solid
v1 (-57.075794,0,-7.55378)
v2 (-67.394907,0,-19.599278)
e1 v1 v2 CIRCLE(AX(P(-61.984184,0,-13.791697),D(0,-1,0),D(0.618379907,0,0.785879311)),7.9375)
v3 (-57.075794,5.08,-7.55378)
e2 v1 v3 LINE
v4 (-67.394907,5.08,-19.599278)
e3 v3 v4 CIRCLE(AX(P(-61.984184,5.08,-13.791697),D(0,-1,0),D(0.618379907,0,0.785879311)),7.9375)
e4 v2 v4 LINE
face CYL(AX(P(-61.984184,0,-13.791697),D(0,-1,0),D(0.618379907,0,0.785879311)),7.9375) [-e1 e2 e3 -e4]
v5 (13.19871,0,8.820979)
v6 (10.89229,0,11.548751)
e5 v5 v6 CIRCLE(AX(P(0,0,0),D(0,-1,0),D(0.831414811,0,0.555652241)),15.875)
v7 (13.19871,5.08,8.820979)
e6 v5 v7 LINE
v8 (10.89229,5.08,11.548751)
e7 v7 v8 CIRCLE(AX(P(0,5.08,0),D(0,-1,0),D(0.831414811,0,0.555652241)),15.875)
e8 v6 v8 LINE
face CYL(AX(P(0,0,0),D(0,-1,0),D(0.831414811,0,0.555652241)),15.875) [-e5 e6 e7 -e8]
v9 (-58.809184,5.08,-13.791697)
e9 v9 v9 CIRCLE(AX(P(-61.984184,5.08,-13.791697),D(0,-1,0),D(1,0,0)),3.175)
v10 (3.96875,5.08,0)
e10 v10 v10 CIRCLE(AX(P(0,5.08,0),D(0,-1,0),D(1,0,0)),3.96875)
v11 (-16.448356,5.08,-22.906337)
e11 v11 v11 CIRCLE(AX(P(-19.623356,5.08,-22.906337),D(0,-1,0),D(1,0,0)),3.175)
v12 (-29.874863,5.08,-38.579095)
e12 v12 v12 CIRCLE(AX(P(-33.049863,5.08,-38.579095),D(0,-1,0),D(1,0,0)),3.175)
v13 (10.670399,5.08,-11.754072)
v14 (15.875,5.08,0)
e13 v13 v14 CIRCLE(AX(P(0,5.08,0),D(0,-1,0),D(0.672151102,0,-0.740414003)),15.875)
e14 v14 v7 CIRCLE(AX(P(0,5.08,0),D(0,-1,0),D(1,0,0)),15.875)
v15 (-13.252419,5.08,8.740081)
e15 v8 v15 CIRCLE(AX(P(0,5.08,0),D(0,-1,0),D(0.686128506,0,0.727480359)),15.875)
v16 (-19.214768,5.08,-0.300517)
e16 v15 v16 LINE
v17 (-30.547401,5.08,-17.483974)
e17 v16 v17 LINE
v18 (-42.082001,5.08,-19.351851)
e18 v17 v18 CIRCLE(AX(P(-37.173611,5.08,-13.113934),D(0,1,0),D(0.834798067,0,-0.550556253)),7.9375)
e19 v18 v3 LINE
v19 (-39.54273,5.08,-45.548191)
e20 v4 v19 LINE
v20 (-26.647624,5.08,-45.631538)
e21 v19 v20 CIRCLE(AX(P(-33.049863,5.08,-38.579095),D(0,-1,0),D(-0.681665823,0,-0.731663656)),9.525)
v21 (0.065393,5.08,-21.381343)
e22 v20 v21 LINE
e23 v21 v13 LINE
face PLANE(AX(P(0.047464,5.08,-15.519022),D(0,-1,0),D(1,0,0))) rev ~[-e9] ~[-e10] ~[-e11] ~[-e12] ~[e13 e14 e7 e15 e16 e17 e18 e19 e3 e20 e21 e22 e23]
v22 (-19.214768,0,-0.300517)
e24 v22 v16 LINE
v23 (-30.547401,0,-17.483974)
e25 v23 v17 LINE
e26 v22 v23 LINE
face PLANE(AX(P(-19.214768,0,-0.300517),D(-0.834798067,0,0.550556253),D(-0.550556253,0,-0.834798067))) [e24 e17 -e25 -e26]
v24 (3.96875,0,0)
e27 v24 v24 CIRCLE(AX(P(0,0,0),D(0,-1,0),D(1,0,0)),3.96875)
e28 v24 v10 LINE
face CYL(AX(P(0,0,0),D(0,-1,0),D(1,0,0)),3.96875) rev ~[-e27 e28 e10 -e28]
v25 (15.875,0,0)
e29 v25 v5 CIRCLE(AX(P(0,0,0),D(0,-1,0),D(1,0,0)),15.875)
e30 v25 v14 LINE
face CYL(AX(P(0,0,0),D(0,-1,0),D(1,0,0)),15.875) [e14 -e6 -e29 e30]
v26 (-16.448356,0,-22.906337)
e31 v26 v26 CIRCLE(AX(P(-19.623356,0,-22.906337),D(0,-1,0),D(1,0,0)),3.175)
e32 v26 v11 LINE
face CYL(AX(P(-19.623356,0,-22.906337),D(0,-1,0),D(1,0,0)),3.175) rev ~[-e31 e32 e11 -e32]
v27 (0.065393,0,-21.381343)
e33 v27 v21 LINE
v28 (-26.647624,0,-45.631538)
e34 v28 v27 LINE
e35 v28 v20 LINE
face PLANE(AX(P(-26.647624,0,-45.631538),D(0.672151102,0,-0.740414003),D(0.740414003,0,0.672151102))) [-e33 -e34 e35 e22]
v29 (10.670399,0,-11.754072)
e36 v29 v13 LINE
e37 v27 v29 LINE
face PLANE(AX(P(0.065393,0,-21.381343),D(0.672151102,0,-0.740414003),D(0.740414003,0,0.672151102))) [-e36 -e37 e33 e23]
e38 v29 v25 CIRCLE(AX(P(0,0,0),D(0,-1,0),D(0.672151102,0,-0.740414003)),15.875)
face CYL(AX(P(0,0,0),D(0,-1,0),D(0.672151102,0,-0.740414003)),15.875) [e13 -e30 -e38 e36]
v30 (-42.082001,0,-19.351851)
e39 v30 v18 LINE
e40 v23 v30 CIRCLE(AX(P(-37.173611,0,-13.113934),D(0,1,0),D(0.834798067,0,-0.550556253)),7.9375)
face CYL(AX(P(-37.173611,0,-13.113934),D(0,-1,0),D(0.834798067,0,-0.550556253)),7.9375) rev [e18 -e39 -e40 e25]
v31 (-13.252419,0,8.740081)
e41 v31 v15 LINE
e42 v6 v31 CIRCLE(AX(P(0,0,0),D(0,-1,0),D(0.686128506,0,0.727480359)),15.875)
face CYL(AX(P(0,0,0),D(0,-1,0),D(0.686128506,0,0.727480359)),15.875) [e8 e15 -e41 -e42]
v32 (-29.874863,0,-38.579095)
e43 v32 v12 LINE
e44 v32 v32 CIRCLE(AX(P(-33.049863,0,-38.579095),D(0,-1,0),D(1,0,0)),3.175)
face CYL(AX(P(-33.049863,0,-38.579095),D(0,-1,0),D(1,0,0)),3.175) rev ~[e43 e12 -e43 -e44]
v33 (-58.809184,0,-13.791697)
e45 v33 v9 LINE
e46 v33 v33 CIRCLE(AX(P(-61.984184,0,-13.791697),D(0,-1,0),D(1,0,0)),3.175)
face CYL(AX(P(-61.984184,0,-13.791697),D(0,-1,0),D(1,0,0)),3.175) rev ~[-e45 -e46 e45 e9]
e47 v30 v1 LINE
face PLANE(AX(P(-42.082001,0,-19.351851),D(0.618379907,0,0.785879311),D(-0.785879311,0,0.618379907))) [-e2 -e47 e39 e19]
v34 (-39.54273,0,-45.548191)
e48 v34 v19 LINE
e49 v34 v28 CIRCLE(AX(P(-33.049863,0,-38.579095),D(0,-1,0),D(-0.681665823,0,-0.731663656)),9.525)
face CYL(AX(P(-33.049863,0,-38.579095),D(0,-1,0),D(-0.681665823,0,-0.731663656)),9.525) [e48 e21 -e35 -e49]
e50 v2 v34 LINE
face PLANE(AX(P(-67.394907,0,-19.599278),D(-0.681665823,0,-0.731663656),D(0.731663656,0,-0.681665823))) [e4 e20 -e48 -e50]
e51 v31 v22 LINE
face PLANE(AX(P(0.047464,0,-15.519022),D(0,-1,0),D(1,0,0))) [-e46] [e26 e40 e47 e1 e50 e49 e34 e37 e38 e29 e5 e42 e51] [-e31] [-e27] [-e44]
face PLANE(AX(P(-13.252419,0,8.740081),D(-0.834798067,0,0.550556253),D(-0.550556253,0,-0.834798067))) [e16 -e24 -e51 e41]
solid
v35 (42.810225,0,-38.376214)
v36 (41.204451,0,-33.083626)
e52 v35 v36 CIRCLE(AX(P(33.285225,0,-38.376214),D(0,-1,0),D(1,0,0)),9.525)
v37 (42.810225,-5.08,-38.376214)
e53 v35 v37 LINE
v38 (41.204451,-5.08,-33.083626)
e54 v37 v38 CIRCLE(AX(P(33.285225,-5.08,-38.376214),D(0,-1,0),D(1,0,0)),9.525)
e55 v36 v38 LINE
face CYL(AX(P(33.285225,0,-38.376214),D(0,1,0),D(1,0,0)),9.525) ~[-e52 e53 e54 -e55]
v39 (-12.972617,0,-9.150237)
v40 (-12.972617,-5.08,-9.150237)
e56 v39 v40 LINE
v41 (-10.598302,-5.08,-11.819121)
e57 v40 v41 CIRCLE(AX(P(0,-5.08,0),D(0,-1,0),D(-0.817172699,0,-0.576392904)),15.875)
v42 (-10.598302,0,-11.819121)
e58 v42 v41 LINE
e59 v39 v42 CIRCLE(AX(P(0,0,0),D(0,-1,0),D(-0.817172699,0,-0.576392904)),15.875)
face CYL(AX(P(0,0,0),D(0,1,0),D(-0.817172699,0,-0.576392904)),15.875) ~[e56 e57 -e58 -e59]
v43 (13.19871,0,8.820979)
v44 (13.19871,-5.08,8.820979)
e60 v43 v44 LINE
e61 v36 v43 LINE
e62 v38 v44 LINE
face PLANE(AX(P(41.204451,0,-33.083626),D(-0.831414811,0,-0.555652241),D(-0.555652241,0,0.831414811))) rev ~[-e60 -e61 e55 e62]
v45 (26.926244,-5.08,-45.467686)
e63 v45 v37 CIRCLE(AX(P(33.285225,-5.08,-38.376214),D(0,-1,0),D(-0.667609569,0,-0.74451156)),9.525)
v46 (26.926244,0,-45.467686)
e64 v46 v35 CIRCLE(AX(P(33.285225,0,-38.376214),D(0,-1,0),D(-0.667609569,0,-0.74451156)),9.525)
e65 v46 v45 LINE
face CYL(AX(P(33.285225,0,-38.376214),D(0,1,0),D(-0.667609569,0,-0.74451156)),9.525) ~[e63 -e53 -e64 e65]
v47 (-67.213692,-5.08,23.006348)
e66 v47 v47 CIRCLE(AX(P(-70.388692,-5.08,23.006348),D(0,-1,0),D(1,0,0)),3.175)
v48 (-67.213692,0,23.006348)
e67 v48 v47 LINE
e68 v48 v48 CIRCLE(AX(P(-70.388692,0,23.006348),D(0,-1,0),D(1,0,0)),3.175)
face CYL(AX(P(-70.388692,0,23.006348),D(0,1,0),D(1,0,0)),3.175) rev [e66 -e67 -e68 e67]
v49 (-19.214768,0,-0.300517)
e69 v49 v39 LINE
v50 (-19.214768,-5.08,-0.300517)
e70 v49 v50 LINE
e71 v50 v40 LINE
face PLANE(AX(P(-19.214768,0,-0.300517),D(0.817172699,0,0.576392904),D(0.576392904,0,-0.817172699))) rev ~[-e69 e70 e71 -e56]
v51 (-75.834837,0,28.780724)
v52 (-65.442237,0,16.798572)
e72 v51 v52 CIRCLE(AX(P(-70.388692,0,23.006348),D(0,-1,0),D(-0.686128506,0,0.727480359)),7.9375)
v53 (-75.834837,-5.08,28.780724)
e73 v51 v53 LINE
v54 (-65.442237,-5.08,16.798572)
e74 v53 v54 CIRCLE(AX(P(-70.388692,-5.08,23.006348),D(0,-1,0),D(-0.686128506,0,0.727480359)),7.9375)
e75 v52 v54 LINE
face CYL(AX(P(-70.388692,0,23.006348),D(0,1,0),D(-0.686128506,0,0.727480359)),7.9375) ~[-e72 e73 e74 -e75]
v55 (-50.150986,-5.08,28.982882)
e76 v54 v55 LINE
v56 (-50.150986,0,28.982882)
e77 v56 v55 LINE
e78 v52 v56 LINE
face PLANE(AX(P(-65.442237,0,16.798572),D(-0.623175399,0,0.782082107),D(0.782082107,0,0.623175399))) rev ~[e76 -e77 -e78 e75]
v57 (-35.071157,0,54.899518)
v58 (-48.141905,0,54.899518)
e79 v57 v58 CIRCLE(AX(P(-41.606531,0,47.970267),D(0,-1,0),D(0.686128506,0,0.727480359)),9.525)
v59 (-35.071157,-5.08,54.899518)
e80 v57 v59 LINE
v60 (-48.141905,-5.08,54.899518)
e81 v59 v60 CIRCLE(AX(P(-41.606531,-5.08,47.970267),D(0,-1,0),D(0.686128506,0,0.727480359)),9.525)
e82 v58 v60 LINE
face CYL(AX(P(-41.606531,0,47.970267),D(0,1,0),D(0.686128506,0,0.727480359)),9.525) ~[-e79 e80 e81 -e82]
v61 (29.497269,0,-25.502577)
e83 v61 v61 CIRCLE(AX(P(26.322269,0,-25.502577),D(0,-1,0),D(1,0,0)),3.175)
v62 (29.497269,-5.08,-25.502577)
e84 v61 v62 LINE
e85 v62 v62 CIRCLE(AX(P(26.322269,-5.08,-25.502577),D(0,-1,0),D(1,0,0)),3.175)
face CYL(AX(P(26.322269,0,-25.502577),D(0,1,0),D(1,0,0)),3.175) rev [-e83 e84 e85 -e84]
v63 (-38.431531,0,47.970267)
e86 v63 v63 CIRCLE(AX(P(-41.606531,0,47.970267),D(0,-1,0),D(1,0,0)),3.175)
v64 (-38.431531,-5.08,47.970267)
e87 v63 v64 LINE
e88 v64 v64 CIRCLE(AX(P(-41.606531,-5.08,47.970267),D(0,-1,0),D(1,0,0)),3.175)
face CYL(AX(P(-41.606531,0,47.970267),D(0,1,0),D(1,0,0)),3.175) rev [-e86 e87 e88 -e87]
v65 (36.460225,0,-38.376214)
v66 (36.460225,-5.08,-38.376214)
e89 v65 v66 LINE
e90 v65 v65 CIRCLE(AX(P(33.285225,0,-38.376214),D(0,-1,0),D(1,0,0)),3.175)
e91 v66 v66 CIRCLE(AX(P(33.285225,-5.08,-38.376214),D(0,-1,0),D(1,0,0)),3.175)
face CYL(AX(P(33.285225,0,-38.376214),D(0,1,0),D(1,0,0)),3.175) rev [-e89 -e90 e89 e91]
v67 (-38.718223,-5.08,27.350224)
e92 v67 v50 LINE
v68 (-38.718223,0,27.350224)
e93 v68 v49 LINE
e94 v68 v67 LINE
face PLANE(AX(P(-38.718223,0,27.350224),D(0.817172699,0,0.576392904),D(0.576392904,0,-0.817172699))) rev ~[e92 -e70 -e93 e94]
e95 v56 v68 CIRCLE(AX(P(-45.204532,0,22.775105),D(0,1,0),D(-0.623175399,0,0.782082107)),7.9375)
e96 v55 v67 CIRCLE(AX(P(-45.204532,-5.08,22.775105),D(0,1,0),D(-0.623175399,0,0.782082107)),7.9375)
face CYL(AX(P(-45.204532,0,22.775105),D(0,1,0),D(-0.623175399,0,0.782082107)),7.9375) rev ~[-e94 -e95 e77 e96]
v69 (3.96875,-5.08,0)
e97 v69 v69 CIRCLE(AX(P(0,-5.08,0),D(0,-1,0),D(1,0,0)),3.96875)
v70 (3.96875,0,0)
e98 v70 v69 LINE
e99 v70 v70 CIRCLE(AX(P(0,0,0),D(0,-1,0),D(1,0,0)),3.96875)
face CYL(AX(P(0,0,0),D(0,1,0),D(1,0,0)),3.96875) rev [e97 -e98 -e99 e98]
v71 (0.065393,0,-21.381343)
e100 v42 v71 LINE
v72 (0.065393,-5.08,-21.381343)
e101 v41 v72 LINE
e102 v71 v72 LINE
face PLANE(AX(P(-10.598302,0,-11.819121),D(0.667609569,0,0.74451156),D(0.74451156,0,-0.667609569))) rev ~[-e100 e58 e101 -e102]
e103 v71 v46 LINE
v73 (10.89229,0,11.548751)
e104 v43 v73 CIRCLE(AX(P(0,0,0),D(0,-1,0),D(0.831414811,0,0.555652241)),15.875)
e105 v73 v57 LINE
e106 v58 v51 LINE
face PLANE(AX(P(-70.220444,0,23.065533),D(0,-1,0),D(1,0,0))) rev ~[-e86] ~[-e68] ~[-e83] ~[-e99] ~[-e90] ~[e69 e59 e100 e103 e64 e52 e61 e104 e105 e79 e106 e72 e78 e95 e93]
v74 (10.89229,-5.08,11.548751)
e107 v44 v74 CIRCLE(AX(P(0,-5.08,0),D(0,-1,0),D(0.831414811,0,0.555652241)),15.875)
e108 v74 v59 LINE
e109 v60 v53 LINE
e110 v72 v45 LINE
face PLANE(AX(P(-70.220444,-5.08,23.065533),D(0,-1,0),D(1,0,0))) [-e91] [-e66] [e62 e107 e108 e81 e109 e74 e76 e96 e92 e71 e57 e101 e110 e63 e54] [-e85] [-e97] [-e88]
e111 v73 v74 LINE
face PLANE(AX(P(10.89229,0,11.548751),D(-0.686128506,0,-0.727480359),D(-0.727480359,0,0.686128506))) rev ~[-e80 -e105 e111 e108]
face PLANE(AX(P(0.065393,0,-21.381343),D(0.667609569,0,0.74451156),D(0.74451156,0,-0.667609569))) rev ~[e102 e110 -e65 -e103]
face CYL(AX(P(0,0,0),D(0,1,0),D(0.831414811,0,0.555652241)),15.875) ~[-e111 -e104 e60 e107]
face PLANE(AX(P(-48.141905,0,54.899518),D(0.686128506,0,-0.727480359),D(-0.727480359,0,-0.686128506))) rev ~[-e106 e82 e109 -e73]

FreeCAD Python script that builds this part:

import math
import FreeCAD as App
import Part
import Sketcher
from FreeCAD import Vector
Q = App.Units.Quantity

doc = App.newDocument("Part")
body = doc.addObject("PartDesign::Body", "Body")

sketch1 = body.newObject("Sketcher::SketchObject", "Sketch")
sketch1.AttachmentSupport = (doc.getObject("XZ_Plane"), [""])
sketch1.MapMode = "FlatFace"
sketch1.addGeometry([
    Part.ArcOfCircle(Part.Circle(Vector(-70.4, 23, 0), Vector(0, 0, 1), 7.9), math.radians(133), math.radians(309)),
    Part.LineSegment(Vector(-65.4, 16.8, 0), Vector(-50.2, 29, 0)),
    Part.ArcOfCircle(Part.Circle(Vector(-45.2, 22.8, 0), Vector(0, 0, 1), 7.9), math.radians(35), math.radians(129)),
    Part.LineSegment(Vector(-38.7, 27.4, 0), Vector(-19.2, -0.3, 0)),
    Part.LineSegment(Vector(-19.2, -0.3, 0), Vector(-13, -9.2, 0)),
    Part.ArcOfCircle(Part.Circle(Vector(0, 0, 0), Vector(0, 0, 1), 15.9), math.radians(-144.8), math.radians(-131.88)),
    Part.LineSegment(Vector(-10.6, -11.8, 0), Vector(0.1, -21.4, 0)),
    Part.LineSegment(Vector(0.1, -21.4, 0), Vector(26.9, -45.5, 0)),
    Part.ArcOfCircle(Part.Circle(Vector(33.3, -38.4, 0), Vector(0, 0, 1), 9.5), math.radians(-132), math.radians(0)),
    Part.ArcOfCircle(Part.Circle(Vector(33.3, -38.4, 0), Vector(0, 0, 1), 9.5), math.radians(0), math.radians(34)),
    Part.LineSegment(Vector(41.2, -33.1, 0), Vector(13.2, 8.8, 0)),
    Part.ArcOfCircle(Part.Circle(Vector(0, 0, 0), Vector(0, 0, 1), 15.9), math.radians(33.76), math.radians(46.68)),
    Part.LineSegment(Vector(10.9, 11.5, 0), Vector(-35.1, 54.9, 0)),
    Part.ArcOfCircle(Part.Circle(Vector(-41.6, 48, 0), Vector(0, 0, 1), 9.5), math.radians(47), math.radians(133)),
    Part.LineSegment(Vector(-48.1, 54.9, 0), Vector(-75.8, 28.8, 0)),
    Part.Circle(Vector(33.3, -38.4, 0), Vector(0, 0, 1), 3.2),
    Part.Circle(Vector(26.3, -25.5, 0), Vector(0, 0, 1), 3.2),
    Part.Circle(Vector(0, 0, 0), Vector(0, 0, 1), 4),
    Part.Circle(Vector(-70.4, 23, 0), Vector(0, 0, 1), 3.2),
    Part.Circle(Vector(-41.6, 48, 0), Vector(0, 0, 1), 3.2),
], False)
sketch1.addConstraint([
    Sketcher.Constraint("Tangent", 0, 2, 1, 1),
    Sketcher.Constraint("Tangent", 1, 2, 2, 2),
    Sketcher.Constraint("Tangent", 2, 1, 3, 1),
    Sketcher.Constraint("Coincident", 3, 2, 4, 1),
    Sketcher.Constraint("Tangent", 4, 2, 5, 1),
    Sketcher.Constraint("Tangent", 5, 2, 6, 1),
    Sketcher.Constraint("Coincident", 6, 2, 7, 1),
    Sketcher.Constraint("Tangent", 7, 2, 8, 1),
    Sketcher.Constraint("Tangent", 8, 2, 9, 1),
    Sketcher.Constraint("Tangent", 9, 2, 10, 1),
    Sketcher.Constraint("Tangent", 10, 2, 11, 1),
    Sketcher.Constraint("Tangent", 11, 2, 12, 1),
    Sketcher.Constraint("Tangent", 12, 2, 13, 1),
    Sketcher.Constraint("Tangent", 13, 2, 14, 1),
    Sketcher.Constraint("Tangent", 14, 2, 0, 1),
    Sketcher.Constraint("Coincident", 5, 3, -1, 1),
    Sketcher.Constraint("Coincident", 11, 3, -1, 1),
    Sketcher.Constraint("Coincident", 17, 3, -1, 1),
    Sketcher.Constraint("Coincident", 15, 3, 8, 3),
    Sketcher.Constraint("Coincident", 18, 3, 0, 3),
    Sketcher.Constraint("Coincident", 19, 3, 13, 3),
    Sketcher.Constraint("Equal", 0, 2),
    Sketcher.Constraint("Equal", 8, 9),
    Sketcher.Constraint("Equal", 5, 11),
    Sketcher.Constraint("Equal", 9, 13),
    Sketcher.Constraint("Equal", 15, 16),
    Sketcher.Constraint("Equal", 16, 18),
    Sketcher.Constraint("Equal", 18, 19),
    Sketcher.Constraint("Parallel", 3, 4),
    Sketcher.Constraint("Parallel", 6, 7),
    Sketcher.Constraint("Horizontal", 15, 3, 8, 2),
    Sketcher.Constraint("Horizontal", 12, 2, 13, 2),
    Sketcher.Constraint("Diameter", 15, Q("0.25 in")),
    Sketcher.Constraint("Diameter", 17, Q("0.3125 in")),
    Sketcher.Constraint("Radius", 0, Q("0.3125 in")),
    Sketcher.Constraint("Radius", 5, Q("0.625 in")),
    Sketcher.Constraint("Radius", 8, Q("0.375 in")),
    Sketcher.Constraint("DistanceX", 5, 2, -1, 1, Q("10.598302 mm")),
    Sketcher.Constraint("DistanceX", 2, 3, 13, 3, Q("3.598 mm")),
    Sketcher.Constraint("DistanceY", 5, 2, 10, 2, Q("20.6401 mm")),
    Sketcher.Constraint("DistanceX", 14, 2, 0, 2, Q("10.3926 mm")),
    Sketcher.Constraint("Distance", 4, Q("10.829682 mm")),
    Sketcher.Constraint("DistanceX", 0, 3, -1, 1, Q("70.388692 mm")),
    Sketcher.Constraint("DistanceY", -1, 1, 0, 3, Q("23.006348 mm")),
    Sketcher.Constraint("DistanceX", 2, 3, -1, 1, Q("45.204532 mm")),
    Sketcher.Constraint("DistanceX", -1, 1, 16, 3, Q("26.322269 mm")),
    Sketcher.Constraint("DistanceY", 16, 3, 4, 2, Q("16.35234 mm")),
    Sketcher.Constraint("DistanceX", 4, 2, 6, 2, Q("13.03801 mm")),
])
pad1 = body.newObject("PartDesign::Pad", "Pad")
pad1.Profile = sketch1
pad1.Length = Q("0.2 in")
body2 = doc.addObject("PartDesign::Body", "Body001")

sketch2 = body2.newObject("Sketcher::SketchObject", "Sketch001")
sketch2.AttachmentSupport = (doc.getObject("XZ_Plane001"), [""])
sketch2.MapMode = "FlatFace"
sketch2.addGeometry([
    Part.LineSegment(Vector(0.1, -21.4, 0), Vector(10.7, -11.8, 0)),
    Part.ArcOfCircle(Part.Circle(Vector(0, 0, 0), Vector(0, 0, 1), 15.9), math.radians(-48), math.radians(0)),
    Part.ArcOfCircle(Part.Circle(Vector(0, 0, 0), Vector(0, 0, 1), 15.9), math.radians(0), math.radians(34)),
    Part.ArcOfCircle(Part.Circle(Vector(0, 0, 0), Vector(0, 0, 1), 15.9), math.radians(33.76), math.radians(46.68)),
    Part.ArcOfCircle(Part.Circle(Vector(0, 0, 0), Vector(0, 0, 1), 15.9), math.radians(47), math.radians(147)),
    Part.LineSegment(Vector(-13.3, 8.7, 0), Vector(-19.2, -0.3, 0)),
    Part.LineSegment(Vector(-19.2, -0.3, 0), Vector(-30.5, -17.5, 0)),
    Part.ArcOfCircle(Part.Circle(Vector(-37.2, -13.1, 0), Vector(0, 0, 1), 7.9), math.radians(-128), math.radians(-33)),
    Part.LineSegment(Vector(-42.1, -19.4, 0), Vector(-57.1, -7.6, 0)),
    Part.ArcOfCircle(Part.Circle(Vector(-62, -13.8, 0), Vector(0, 0, 1), 7.9), math.radians(52), math.radians(227)),
    Part.LineSegment(Vector(-67.4, -19.6, 0), Vector(-39.5, -45.5, 0)),
    Part.ArcOfCircle(Part.Circle(Vector(-33, -38.6, 0), Vector(0, 0, 1), 9.5), math.radians(-133), math.radians(-48)),
    Part.LineSegment(Vector(-26.6, -45.6, 0), Vector(0.1, -21.4, 0)),
    Part.Circle(Vector(-33, -38.6, 0), Vector(0, 0, 1), 3.2),
    Part.Circle(Vector(-19.6, -22.9, 0), Vector(0, 0, 1), 3.2),
    Part.Circle(Vector(-62, -13.8, 0), Vector(0, 0, 1), 3.2),
    Part.Circle(Vector(0, 0, 0), Vector(0, 0, 1), 4),
], False)
sketch2.addConstraint([
    Sketcher.Constraint("Tangent", 0, 2, 1, 1),
    Sketcher.Constraint("Tangent", 1, 2, 2, 1),
    Sketcher.Constraint("Tangent", 2, 2, 3, 1),
    Sketcher.Constraint("Tangent", 3, 2, 4, 1),
    Sketcher.Constraint("Tangent", 4, 2, 5, 1),
    Sketcher.Constraint("Coincident", 5, 2, 6, 1),
    Sketcher.Constraint("Tangent", 6, 2, 7, 2),
    Sketcher.Constraint("Tangent", 7, 1, 8, 1),
    Sketcher.Constraint("Tangent", 8, 2, 9, 1),
    Sketcher.Constraint("Tangent", 9, 2, 10, 1),
    Sketcher.Constraint("Tangent", 10, 2, 11, 1),
    Sketcher.Constraint("Tangent", 11, 2, 12, 1),
    Sketcher.Constraint("Coincident", 12, 2, 0, 1),
    Sketcher.Constraint("Coincident", 1, 3, -1, 1),
    Sketcher.Constraint("Coincident", 3, 3, -1, 1),
    Sketcher.Constraint("Coincident", 16, 3, -1, 1),
    Sketcher.Constraint("Coincident", 13, 3, 11, 3),
    Sketcher.Constraint("Coincident", 15, 3, 9, 3),
    Sketcher.Constraint("Equal", 3, 4),
    Sketcher.Constraint("Equal", 7, 9),
    Sketcher.Constraint("Equal", 13, 14),
    Sketcher.Constraint("Equal", 14, 15),
    Sketcher.Constraint("PointOnObject", 1, 2, -1),
    Sketcher.Constraint("Parallel", 5, 6),
    Sketcher.Constraint("Parallel", 0, 12),
    Sketcher.Constraint("Diameter", 13, Q("0.25 in")),
    Sketcher.Constraint("Diameter", 16, Q("0.3125 in")),
    Sketcher.Constraint("Radius", 1, Q("0.625 in")),
    Sketcher.Constraint("Radius", 7, Q("0.3125 in")),
    Sketcher.Constraint("Radius", 11, Q("0.375 in")),
    Sketcher.Constraint("Distance", 8, Q("19.079001 mm")),
    Sketcher.Constraint("DistanceX", -1, 1, 0, 2, Q("10.670399 mm")),
    Sketcher.Constraint("DistanceX", 6, 2, -1, 1, Q("30.547401 mm")),
    Sketcher.Constraint("DistanceX", 7, 1, -1, 1, Q("42.082001 mm")),
    Sketcher.Constraint("DistanceY", 11, 2, 14, 3, Q("22.725201 mm")),
    Sketcher.Constraint("Distance", 5, Q("10.829682 mm")),
    Sketcher.Constraint("Distance", 6, Q("20.583969 mm")),
    Sketcher.Constraint("DistanceX", -1, 1, 2, 2, Q("13.19871 mm")),
    Sketcher.Constraint("DistanceX", -1, 1, 3, 2, Q("10.89229 mm")),
    Sketcher.Constraint("DistanceX", 10, 2, -1, 1, Q("39.54273 mm")),
    Sketcher.Constraint("DistanceY", 12, 2, 0, 2, Q("9.627271 mm")),
    Sketcher.Constraint("DistanceX", 14, 3, 12, 2, Q("19.688749 mm")),
])
pad2 = body2.newObject("PartDesign::Pad", "Pad001")
pad2.Profile = sketch2
pad2.Length = Q("0.2 in")
pad2.Reversed = True

doc.recompute()
